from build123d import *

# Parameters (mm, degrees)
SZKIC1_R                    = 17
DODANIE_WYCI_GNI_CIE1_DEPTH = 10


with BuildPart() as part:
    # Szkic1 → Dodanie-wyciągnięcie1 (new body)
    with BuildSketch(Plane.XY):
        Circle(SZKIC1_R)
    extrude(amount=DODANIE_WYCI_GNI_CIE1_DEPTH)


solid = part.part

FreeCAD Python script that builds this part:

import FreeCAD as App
import Part
import Sketcher

V = App.Vector

doc = App.newDocument("Part")
body = doc.addObject("PartDesign::Body", "Body")

# Sketch on XY plane
sketch1 = body.newObject("Sketcher::SketchObject", "Sketch")
sketch1.AttachmentSupport = (doc.getObject("XY_Plane"), [""])
sketch1.MapMode = "FlatFace"
sketch1.addGeometry(Part.Circle(V(0, 0, 0), V(0, 0, 1), 17), False)
sketch1.addConstraint([
    Sketcher.Constraint("Coincident", 0, 3, -1, 1),
    Sketcher.Constraint("Diameter", 0, 34.0),
])
pad1 = body.newObject("PartDesign::Pad", "Pad")
pad1.Profile = sketch1
pad1.Length = 10

doc.recompute()
